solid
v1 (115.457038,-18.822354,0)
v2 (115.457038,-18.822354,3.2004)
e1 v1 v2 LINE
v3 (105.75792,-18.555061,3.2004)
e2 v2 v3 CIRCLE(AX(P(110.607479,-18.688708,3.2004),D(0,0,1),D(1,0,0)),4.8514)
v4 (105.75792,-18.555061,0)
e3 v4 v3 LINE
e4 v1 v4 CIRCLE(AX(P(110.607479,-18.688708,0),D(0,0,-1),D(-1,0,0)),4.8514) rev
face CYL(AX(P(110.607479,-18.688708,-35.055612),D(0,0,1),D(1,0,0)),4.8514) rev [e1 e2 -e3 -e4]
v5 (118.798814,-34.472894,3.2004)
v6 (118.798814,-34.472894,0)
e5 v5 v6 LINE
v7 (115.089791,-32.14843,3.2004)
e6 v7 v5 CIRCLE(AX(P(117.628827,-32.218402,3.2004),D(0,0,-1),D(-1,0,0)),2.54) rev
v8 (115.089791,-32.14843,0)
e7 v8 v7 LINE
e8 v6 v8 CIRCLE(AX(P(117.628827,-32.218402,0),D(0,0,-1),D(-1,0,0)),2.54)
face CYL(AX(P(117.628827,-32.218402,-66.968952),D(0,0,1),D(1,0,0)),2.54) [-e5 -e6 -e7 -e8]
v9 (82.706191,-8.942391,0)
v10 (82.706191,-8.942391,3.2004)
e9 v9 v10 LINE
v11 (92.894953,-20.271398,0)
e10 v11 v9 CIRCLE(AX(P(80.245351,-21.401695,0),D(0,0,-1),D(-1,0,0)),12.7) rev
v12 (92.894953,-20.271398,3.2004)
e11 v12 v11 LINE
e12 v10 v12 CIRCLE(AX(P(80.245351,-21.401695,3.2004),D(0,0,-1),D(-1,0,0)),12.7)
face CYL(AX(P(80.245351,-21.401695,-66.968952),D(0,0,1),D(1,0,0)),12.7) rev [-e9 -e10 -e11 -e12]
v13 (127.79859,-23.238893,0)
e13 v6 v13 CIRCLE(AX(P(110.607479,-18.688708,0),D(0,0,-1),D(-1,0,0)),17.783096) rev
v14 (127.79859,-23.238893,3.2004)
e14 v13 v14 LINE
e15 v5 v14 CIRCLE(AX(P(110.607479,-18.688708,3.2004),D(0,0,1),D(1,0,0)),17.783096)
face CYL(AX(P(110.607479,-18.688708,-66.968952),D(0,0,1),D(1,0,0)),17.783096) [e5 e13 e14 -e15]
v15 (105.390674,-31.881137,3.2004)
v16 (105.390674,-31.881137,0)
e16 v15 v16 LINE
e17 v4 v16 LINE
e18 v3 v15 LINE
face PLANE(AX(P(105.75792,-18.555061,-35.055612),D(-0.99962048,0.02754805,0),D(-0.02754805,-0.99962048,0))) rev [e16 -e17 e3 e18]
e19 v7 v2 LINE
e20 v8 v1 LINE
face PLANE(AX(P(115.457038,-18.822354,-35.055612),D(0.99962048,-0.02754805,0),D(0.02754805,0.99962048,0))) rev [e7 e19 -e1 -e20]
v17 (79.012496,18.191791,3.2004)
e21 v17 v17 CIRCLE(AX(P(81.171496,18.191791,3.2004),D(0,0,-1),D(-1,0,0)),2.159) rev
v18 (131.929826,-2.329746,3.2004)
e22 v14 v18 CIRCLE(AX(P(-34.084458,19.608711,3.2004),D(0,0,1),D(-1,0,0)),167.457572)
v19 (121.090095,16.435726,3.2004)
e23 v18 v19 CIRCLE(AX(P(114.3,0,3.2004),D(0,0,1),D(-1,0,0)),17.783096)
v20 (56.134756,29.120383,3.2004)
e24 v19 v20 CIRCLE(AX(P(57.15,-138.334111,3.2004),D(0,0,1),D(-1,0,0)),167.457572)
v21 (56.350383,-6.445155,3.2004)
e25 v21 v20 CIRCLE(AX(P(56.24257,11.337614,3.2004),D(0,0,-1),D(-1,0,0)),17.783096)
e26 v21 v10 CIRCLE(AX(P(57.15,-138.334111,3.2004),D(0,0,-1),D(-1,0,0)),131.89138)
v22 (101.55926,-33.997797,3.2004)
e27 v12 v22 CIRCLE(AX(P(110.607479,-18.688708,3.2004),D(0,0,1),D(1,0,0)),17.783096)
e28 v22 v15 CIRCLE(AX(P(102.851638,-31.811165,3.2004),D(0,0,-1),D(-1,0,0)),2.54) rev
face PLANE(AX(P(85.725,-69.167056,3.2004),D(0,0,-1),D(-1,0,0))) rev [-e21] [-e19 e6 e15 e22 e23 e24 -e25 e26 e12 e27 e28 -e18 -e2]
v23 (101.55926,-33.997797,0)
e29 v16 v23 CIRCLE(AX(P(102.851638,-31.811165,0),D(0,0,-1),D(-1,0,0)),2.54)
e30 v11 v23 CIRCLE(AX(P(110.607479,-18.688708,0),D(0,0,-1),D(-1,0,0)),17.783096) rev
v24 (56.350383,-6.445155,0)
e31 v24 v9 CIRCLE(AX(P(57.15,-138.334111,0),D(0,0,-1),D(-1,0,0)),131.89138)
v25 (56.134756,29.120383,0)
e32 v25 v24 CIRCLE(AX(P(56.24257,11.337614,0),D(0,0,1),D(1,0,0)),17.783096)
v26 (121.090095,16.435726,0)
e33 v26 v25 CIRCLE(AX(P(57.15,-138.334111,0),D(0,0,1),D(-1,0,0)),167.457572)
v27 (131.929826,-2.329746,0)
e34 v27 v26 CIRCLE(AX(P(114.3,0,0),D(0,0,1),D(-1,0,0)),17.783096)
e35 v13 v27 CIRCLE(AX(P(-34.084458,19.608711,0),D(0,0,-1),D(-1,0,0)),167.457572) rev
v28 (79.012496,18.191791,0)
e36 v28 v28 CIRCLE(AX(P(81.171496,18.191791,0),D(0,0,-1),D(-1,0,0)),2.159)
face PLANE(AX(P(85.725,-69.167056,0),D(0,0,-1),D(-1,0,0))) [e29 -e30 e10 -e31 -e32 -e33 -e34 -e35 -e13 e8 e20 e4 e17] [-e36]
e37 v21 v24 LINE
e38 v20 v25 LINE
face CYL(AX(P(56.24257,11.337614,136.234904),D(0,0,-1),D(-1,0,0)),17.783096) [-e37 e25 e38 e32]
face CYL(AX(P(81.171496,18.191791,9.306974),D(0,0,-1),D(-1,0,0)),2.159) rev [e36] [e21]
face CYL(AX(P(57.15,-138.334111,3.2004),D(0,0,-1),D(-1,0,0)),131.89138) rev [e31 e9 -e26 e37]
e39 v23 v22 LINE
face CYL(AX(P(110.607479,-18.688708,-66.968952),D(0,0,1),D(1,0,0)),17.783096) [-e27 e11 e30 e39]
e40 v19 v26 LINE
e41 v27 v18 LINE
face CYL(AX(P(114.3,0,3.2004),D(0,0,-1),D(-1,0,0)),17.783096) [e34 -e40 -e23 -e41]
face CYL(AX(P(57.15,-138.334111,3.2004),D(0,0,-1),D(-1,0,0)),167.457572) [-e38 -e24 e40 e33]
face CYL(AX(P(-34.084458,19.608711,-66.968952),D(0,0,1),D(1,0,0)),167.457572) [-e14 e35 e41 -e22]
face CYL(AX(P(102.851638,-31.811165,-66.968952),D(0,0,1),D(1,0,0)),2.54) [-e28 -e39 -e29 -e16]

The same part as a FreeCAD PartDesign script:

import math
import FreeCAD as App
import Part
import Sketcher
Q = App.Units.Quantity


def edges_at(feature, points):
    """Names of the edges that pass closest to the given points."""
    edges = feature.Shape.Edges
    near = lambda p: min(range(len(edges)), key=lambda i: edges[i].distToShape(Part.Vertex(*p))[0])
    return sorted({f"Edge{near(p) + 1}" for p in points})

doc = App.newDocument("Part")
body = doc.addObject("PartDesign::Body", "Body")

# Sketch on XY plane
sketch1 = doc.addObject("Sketcher::SketchObject", "Sketch")
body.addObject(sketch1)
sketch1.AttachmentSupport = (doc.XY_Plane, [""])
sketch1.MapMode = "FlatFace"
sketch1.addGeometry(Part.ArcOfCircle(Part.Circle(App.Vector(57, -138, 0), App.Vector(0, 0, 1), 167), math.radians(68), math.radians(112)), False)
sketch1.addGeometry(Part.ArcOfCircle(Part.Circle(App.Vector(0, 0, 0), App.Vector(0, 0, 1), 18), math.radians(112), math.radians(292)), False)
sketch1.addGeometry(Part.ArcOfCircle(Part.Circle(App.Vector(57, -138, 0), App.Vector(0, 0, 1), 132), math.radians(68), math.radians(112)), False)
sketch1.addGeometry(Part.ArcOfCircle(Part.Circle(App.Vector(114, 0, 0), App.Vector(0, 0, 1), 18), math.radians(-112), math.radians(68)), False)
sketch1.addConstraint(Sketcher.Constraint("Tangent", 0, 2, 1, 1))
sketch1.addConstraint(Sketcher.Constraint("Tangent", 1, 2, 2, 2))
sketch1.addConstraint(Sketcher.Constraint("Tangent", 2, 1, 3, 1))
sketch1.addConstraint(Sketcher.Constraint("Tangent", 3, 2, 0, 1))
sketch1.addConstraint(Sketcher.Constraint("Coincident", 1, 3, -1, 1))
sketch1.addConstraint(Sketcher.Constraint("Coincident", 2, 3, 0, 3))
sketch1.addConstraint(Sketcher.Constraint("PointOnObject", 3, 3, -1))
sketch1.addConstraint(Sketcher.Constraint("DistanceX", -1, 1, 3, 3, Q("4.5 in")))
sketch1.addConstraint(Sketcher.Constraint("Radius", 0, Q("167.457572 mm")))
sketch1.addConstraint(Sketcher.Constraint("Radius", 2, Q("131.89138 mm")))
pad1 = doc.addObject("PartDesign::Pad", "Pad")
body.addObject(pad1)
pad1.Profile = sketch1
pad1.Length = Q("0.126 in")

# Sketch on XY plane
sketch2 = doc.addObject("Sketcher::SketchObject", "Sketch001")
body.addObject(sketch2)
sketch2.AttachmentSupport = (doc.XY_Plane, [""])
sketch2.MapMode = "FlatFace"
sketch2.addGeometry(Part.ArcOfCircle(Part.Circle(App.Vector(114, 0, 0), App.Vector(0, 0, 1), 18), math.radians(-8), math.radians(172)), False)
sketch2.addGeometry(Part.ArcOfCircle(Part.Circle(App.Vector(-34, 20, 0), App.Vector(0, 0, 1), 132), math.radians(-14.83), math.radians(-7.53)), False)
sketch2.addGeometry(Part.ArcOfCircle(Part.Circle(App.Vector(111, -19, 0), App.Vector(0, 0, 1), 18), math.radians(165), math.radians(345)), False)
sketch2.addGeometry(Part.ArcOfCircle(Part.Circle(App.Vector(-34, 20, 0), App.Vector(0, 0, 1), 167), math.radians(-14.83), math.radians(-7.53)), False)
sketch2.addConstraint(Sketcher.Constraint("Tangent", 0, 2, 1, 2))
sketch2.addConstraint(Sketcher.Constraint("Tangent", 1, 1, 2, 1))
sketch2.addConstraint(Sketcher.Constraint("Tangent", 2, 2, 3, 1))
sketch2.addConstraint(Sketcher.Constraint("Tangent", 3, 2, 0, 1))
sketch2.addConstraint(Sketcher.Constraint("Coincident", 3, 3, 1, 3))
sketch2.addConstraint(Sketcher.Constraint("PointOnObject", 0, 3, -1))
sketch2.addConstraint(Sketcher.Constraint("DistanceX", -1, 1, 0, 3, Q("4.5 in")))
sketch2.addConstraint(Sketcher.Constraint("Radius", 1, Q("131.891381 mm")))
sketch2.addConstraint(Sketcher.Constraint("Radius", 0, Q("17.783096 mm")))
sketch2.addConstraint(Sketcher.Constraint("DistanceY", -1, 1, 1, 3, Q("19.608711 mm")))
sketch2.addConstraint(Sketcher.Constraint("DistanceX", -1, 1, 2, 3, Q("110.607479 mm")))
pad2 = doc.addObject("PartDesign::Pad", "Pad001")
body.addObject(pad2)
pad2.Profile = sketch2
pad2.Length = Q("0.126 in")
doc.recompute()

fillet = doc.addObject("PartDesign::Fillet", "Fillet")
body.addObject(fillet)
fillet.Base = (pad2, edges_at(pad2, [(94.036, -11.706, 1.6)]))
fillet.Radius = Q("0.5 in")

# Sketch on XY plane
sketch3 = doc.addObject("Sketcher::SketchObject", "Sketch002")
body.addObject(sketch3)
sketch3.AttachmentSupport = (doc.XY_Plane, [""])
sketch3.MapMode = "FlatFace"
sketch3.AttachmentOffset = App.Placement(App.Vector(0, 0, 0.126 * 25.4), App.Rotation())
sketch3.addGeometry(Part.LineSegment(App.Vector(114.7, -47.3, 0), App.Vector(115.5, -18.8, 0)), False)
sketch3.addGeometry(Part.ArcOfCircle(Part.Circle(App.Vector(110.6, -18.7, 0), App.Vector(0, 0, 1), 4.9), math.radians(-2), math.radians(178)), False)
sketch3.addGeometry(Part.LineSegment(App.Vector(105.8, -18.6, 0), App.Vector(105, -47, 0)), False)
sketch3.addGeometry(Part.LineSegment(App.Vector(105, -47, 0), App.Vector(114.7, -47.3, 0)), False)
sketch3.addConstraint(Sketcher.Constraint("Tangent", 0, 2, 1, 1))
sketch3.addConstraint(Sketcher.Constraint("Tangent", 1, 2, 2, 1))
sketch3.addConstraint(Sketcher.Constraint("Coincident", 2, 2, 3, 1))
sketch3.addConstraint(Sketcher.Constraint("Coincident", 3, 2, 0, 1))
sketch3.addConstraint(Sketcher.Constraint("Parallel", 0, 2))
sketch3.addConstraint(Sketcher.Constraint("Perpendicular", 2, 3))
sketch3.addConstraint(Sketcher.Constraint("Radius", 1, Q("0.191 in")))
sketch3.addConstraint(Sketcher.Constraint("DistanceX", -1, 1, 1, 3, Q("110.607479 mm")))
sketch3.addConstraint(Sketcher.Constraint("DistanceY", 1, 2, -1, 1, Q("18.555061 mm")))
sketch3.addConstraint(Sketcher.Constraint("DistanceX", -1, 1, 2, 2, Q("104.973448 mm")))
sketch3.addConstraint(Sketcher.Constraint("DistanceY", 2, 2, -1, 1, Q("47.020749 mm")))
pocket1 = doc.addObject("PartDesign::Pocket", "Pocket")
body.addObject(pocket1)
pocket1.Profile = sketch3
pocket1.Length = Q("0.126 in")
doc.recompute()

fillet2 = doc.addObject("PartDesign::Fillet", "Fillet001")
body.addObject(fillet2)
fillet2.Base = (pocket1, edges_at(pocket1, [(105.287, -35.657, 1.6), (114.986, -35.924, 1.6)]))
fillet2.Radius = Q("0.1 in")

# Sketch on XY plane
sketch4 = doc.addObject("Sketcher::SketchObject", "Sketch003")
body.addObject(sketch4)
sketch4.AttachmentSupport = (doc.XY_Plane, [""])
sketch4.MapMode = "FlatFace"
sketch4.addGeometry(Part.Circle(App.Vector(81.2, 18.2, 0), App.Vector(0, 0, 1), 2.2), False)
sketch4.addConstraint(Sketcher.Constraint("Diameter", 0, Q("0.17 in")))
sketch4.addConstraint(Sketcher.Constraint("DistanceY", -1, 1, 0, 3, Q("18.191791 mm")))
sketch4.addConstraint(Sketcher.Constraint("DistanceX", -1, 1, 0, 3, Q("81.171496 mm")))
pocket2 = doc.addObject("PartDesign::Pocket", "Pocket001")
body.addObject(pocket2)
pocket2.Profile = sketch4
pocket2.Length = Q("0.126 in")
pocket2.Reversed = True

# Sketch on XY plane
sketch5 = doc.addObject("Sketcher::SketchObject", "Sketch004")
body.addObject(sketch5)
sketch5.AttachmentSupport = (doc.XY_Plane, [""])
sketch5.MapMode = "FlatFace"
sketch5.addGeometry(Part.LineSegment(App.Vector(-26, 50, 0), App.Vector(56, 29, 0)), False)
sketch5.addGeometry(Part.ArcOfCircle(Part.Circle(App.Vector(56, 11, 0), App.Vector(0, 0, 1), 18), math.radians(90), math.radians(270)), False)
sketch5.addGeometry(Part.LineSegment(App.Vector(56, -6, 0), App.Vector(-33, -49, 0)), False)
sketch5.addGeometry(Part.LineSegment(App.Vector(-33, -49, 0), App.Vector(-26, 50, 0)), False)
sketch5.addConstraint(Sketcher.Constraint("Coincident", 0, 2, 1, 1))
sketch5.addConstraint(Sketcher.Constraint("Coincident", 1, 2, 2, 1))
sketch5.addConstraint(Sketcher.Constraint("Coincident", 2, 2, 3, 1))
sketch5.addConstraint(Sketcher.Constraint("Coincident", 3, 2, 0, 1))
sketch5.addConstraint(Sketcher.Constraint("Radius", 1, Q("17.783096 mm")))
sketch5.addConstraint(Sketcher.Constraint("DistanceY", 2, 2, 3, 2, Q("98.538299 mm")))
sketch5.addConstraint(Sketcher.Constraint("Distance", 0, Q("84.414741 mm")))
sketch5.addConstraint(Sketcher.Constraint("Distance", 2, Q("98.971588 mm")))
sketch5.addConstraint(Sketcher.Constraint("Distance", 3, Q("98.805782 mm")))
sketch5.addConstraint(Sketcher.Constraint("DistanceX", -1, 1, 1, 3, Q("56.24257 mm")))
sketch5.addConstraint(Sketcher.Constraint("DistanceX", 2, 2, -1, 1, Q("33.02737 mm")))
sketch5.addConstraint(Sketcher.Constraint("DistanceY", 2, 2, -1, 1, Q("48.953888 mm")))
sketch5.addConstraint(Sketcher.Constraint("DistanceY", 2, 2, 0, 2, Q("78.074272 mm")))
pocket3 = doc.addObject("PartDesign::Pocket", "Pocket002")
body.addObject(pocket3)
pocket3.Profile = sketch5
pocket3.Length = Q("0.126 in")
pocket3.Reversed = True

doc.recompute()
